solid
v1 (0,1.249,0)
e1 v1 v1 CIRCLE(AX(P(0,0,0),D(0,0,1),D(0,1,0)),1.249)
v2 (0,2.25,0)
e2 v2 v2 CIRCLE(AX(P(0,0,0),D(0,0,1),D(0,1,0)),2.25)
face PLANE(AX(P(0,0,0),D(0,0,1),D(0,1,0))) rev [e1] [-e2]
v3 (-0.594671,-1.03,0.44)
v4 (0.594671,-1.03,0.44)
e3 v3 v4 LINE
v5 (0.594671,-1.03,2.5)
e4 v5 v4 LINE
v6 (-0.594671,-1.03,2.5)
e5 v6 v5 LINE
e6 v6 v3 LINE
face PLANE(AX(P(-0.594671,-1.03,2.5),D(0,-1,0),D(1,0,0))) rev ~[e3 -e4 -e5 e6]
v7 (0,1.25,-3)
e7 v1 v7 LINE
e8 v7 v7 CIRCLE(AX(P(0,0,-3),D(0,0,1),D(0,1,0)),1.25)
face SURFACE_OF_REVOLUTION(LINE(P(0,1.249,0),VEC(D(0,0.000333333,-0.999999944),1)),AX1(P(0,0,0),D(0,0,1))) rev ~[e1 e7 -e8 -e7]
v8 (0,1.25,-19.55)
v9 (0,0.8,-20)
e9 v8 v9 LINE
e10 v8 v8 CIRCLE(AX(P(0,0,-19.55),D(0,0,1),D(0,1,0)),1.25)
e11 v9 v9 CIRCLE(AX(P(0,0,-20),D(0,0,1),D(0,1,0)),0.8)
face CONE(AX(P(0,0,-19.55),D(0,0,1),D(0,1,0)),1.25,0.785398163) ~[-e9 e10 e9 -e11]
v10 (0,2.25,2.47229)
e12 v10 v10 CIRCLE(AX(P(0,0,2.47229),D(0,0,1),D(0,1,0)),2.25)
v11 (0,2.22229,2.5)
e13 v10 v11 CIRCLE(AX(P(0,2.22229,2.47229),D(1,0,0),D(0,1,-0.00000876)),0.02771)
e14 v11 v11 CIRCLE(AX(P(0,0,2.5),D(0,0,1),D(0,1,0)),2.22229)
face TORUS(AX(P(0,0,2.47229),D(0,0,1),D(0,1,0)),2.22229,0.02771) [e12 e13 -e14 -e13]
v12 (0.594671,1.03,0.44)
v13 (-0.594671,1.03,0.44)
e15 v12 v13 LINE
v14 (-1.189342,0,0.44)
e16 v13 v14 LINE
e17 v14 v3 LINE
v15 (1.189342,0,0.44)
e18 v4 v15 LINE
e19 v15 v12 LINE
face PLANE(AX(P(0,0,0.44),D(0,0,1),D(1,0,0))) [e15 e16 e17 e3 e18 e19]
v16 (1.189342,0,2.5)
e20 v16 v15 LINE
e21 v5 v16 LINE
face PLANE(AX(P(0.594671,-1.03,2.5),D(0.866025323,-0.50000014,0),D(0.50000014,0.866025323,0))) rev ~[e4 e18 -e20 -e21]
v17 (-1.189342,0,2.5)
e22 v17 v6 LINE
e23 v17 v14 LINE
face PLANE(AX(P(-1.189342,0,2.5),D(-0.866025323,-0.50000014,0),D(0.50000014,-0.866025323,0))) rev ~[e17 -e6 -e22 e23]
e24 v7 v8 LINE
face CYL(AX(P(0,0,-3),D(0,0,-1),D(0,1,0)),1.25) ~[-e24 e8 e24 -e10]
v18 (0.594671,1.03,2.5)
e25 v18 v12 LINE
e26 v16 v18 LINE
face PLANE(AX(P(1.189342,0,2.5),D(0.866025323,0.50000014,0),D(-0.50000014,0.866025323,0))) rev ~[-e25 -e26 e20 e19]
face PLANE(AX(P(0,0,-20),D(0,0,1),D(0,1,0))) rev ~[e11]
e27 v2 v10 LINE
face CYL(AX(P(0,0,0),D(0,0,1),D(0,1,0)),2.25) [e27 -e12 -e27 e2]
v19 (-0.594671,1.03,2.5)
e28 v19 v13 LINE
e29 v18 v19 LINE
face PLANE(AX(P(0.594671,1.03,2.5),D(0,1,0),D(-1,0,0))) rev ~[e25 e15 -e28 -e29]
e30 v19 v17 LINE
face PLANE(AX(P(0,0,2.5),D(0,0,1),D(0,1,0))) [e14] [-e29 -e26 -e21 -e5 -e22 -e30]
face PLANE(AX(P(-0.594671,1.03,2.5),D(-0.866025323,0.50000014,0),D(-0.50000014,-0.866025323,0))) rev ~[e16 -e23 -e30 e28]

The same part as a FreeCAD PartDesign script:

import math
import FreeCAD as App
import Part
import Sketcher

V = App.Vector
Q = App.Units.Quantity

doc = App.newDocument("Part")
body = doc.addObject("PartDesign::Body", "Body")

sketch1 = body.newObject("Sketcher::SketchObject", "Sketch")
sketch1.AttachmentSupport = (doc.getObject("YZ_Plane"), [""])
sketch1.MapMode = "FlatFace"
sketch1.addGeometry([
    Part.LineSegment(V(1.249, 0, 0), V(2.25, 0, 0)),
    Part.LineSegment(V(2.25, 0, 0), V(2.25, 2.472, 0)),
    Part.ArcOfCircle(Part.Circle(V(2.222, 2.472, 0), V(0, 0, 1), 0.028), math.radians(0), math.radians(90)),
    Part.LineSegment(V(2.222, 2.5, 0), V(0, 2.5, 0)),
    Part.LineSegment(V(0, 2.5, 0), V(0, -20, 0)),
    Part.LineSegment(V(0, -20, 0), V(0.8, -20, 0)),
    Part.LineSegment(V(0.8, -20, 0), V(1.25, -19.55, 0)),
    Part.LineSegment(V(1.25, -19.55, 0), V(1.25, -3, 0)),
    Part.LineSegment(V(1.25, -3, 0), V(1.249, 0, 0)),
], False)
sketch1.addConstraint([
    Sketcher.Constraint("Coincident", 0, 2, 1, 1),
    Sketcher.Constraint("Coincident", 1, 2, 2, 1),
    Sketcher.Constraint("Coincident", 2, 2, 3, 1),
    Sketcher.Constraint("Coincident", 3, 2, 4, 1),
    Sketcher.Constraint("Coincident", 4, 2, 5, 1),
    Sketcher.Constraint("Coincident", 5, 2, 6, 1),
    Sketcher.Constraint("Coincident", 6, 2, 7, 1),
    Sketcher.Constraint("Coincident", 7, 2, 8, 1),
    Sketcher.Constraint("Coincident", 8, 2, 0, 1),
    Sketcher.Constraint("Horizontal", 0),
    Sketcher.Constraint("Vertical", 1),
    Sketcher.Constraint("Horizontal", 3),
    Sketcher.Constraint("Vertical", 4),
    Sketcher.Constraint("Horizontal", 5),
    Sketcher.Constraint("Vertical", 7),
    Sketcher.Constraint("PointOnObject", 0, 2, -1),
    Sketcher.Constraint("PointOnObject", 3, 2, -2),
    Sketcher.Constraint("Horizontal", 2, 3, 1, 2),
    Sketcher.Constraint("Angle", 6, Q("45 deg")),
    Sketcher.Constraint("Distance", 8, Q("3 mm")),
    Sketcher.Constraint("DistanceX", 5, 1, 5, 2, Q("0.8 mm")),
    Sketcher.Constraint("DistanceY", 4, 2, 4, 1, Q("22.5 mm")),
    Sketcher.Constraint("DistanceY", 4, 2, -1, 1, Q("20 mm")),
    Sketcher.Constraint("DistanceX", 6, 2, 0, 2, Q("1 mm")),
    Sketcher.Constraint("DistanceY", 7, 1, 7, 2, Q("16.55 mm")),
    Sketcher.Constraint("DistanceX", 0, 1, 0, 2, Q("1.001 mm")),
    Sketcher.Constraint("Radius", 2, Q("0.02771 mm")),
    Sketcher.Constraint("DistanceX", 3, 2, 3, 1, Q("2.22229 mm")),
])
revolution = body.newObject("PartDesign::Revolution", "Revolution")
revolution.Profile = sketch1
revolution.ReferenceAxis = (sketch1, ["V_Axis"])
revolution.Angle = 360

sketch2 = body.newObject("Sketcher::SketchObject", "Sketch001")
sketch2.AttachmentSupport = (doc.getObject("XY_Plane"), [""])
sketch2.MapMode = "FlatFace"
sketch2.AttachmentOffset = App.Placement(V(0, 0, 2.5), App.Rotation())
sketch2.addGeometry([
    Part.LineSegment(V(1.2, 0, 0), V(0.6, 1, 0)),
    Part.LineSegment(V(0.6, 1, 0), V(-0.6, 1, 0)),
    Part.LineSegment(V(-0.6, 1, 0), V(-1.2, 0, 0)),
    Part.LineSegment(V(-1.2, 0, 0), V(-0.6, -1, 0)),
    Part.LineSegment(V(-0.6, -1, 0), V(0.6, -1, 0)),
    Part.LineSegment(V(0.6, -1, 0), V(1.2, 0, 0)),
], False)
sketch2.addConstraint([
    Sketcher.Constraint("Coincident", 0, 2, 1, 1),
    Sketcher.Constraint("Coincident", 1, 2, 2, 1),
    Sketcher.Constraint("Coincident", 2, 2, 3, 1),
    Sketcher.Constraint("Coincident", 3, 2, 4, 1),
    Sketcher.Constraint("Coincident", 4, 2, 5, 1),
    Sketcher.Constraint("Coincident", 5, 2, 0, 1),
    Sketcher.Constraint("Horizontal", 1),
    Sketcher.Constraint("Horizontal", 4),
    Sketcher.Constraint("Symmetric", 0, 2, 3, 2, -1, 1),
    Sketcher.Constraint("Symmetric", 2, 2, 5, 2, -1, 1),
    Sketcher.Constraint("PointOnObject", 2, 2, -1),
    Sketcher.Constraint("Parallel", 2, 5),
    Sketcher.Constraint("Vertical", 1, 2, 3, 2),
    Sketcher.Constraint("Angle", 0, Q("120.000009 deg")),
    Sketcher.Constraint("DistanceY", -1, 1, 0, 2, Q("1.03 mm")),
    Sketcher.Constraint("DistanceX", 1, 2, 1, 1, Q("1.189342 mm")),
])
pocket1 = body.newObject("PartDesign::Pocket", "Pocket")
pocket1.Profile = sketch2
pocket1.Length = 2.06

doc.recompute()
